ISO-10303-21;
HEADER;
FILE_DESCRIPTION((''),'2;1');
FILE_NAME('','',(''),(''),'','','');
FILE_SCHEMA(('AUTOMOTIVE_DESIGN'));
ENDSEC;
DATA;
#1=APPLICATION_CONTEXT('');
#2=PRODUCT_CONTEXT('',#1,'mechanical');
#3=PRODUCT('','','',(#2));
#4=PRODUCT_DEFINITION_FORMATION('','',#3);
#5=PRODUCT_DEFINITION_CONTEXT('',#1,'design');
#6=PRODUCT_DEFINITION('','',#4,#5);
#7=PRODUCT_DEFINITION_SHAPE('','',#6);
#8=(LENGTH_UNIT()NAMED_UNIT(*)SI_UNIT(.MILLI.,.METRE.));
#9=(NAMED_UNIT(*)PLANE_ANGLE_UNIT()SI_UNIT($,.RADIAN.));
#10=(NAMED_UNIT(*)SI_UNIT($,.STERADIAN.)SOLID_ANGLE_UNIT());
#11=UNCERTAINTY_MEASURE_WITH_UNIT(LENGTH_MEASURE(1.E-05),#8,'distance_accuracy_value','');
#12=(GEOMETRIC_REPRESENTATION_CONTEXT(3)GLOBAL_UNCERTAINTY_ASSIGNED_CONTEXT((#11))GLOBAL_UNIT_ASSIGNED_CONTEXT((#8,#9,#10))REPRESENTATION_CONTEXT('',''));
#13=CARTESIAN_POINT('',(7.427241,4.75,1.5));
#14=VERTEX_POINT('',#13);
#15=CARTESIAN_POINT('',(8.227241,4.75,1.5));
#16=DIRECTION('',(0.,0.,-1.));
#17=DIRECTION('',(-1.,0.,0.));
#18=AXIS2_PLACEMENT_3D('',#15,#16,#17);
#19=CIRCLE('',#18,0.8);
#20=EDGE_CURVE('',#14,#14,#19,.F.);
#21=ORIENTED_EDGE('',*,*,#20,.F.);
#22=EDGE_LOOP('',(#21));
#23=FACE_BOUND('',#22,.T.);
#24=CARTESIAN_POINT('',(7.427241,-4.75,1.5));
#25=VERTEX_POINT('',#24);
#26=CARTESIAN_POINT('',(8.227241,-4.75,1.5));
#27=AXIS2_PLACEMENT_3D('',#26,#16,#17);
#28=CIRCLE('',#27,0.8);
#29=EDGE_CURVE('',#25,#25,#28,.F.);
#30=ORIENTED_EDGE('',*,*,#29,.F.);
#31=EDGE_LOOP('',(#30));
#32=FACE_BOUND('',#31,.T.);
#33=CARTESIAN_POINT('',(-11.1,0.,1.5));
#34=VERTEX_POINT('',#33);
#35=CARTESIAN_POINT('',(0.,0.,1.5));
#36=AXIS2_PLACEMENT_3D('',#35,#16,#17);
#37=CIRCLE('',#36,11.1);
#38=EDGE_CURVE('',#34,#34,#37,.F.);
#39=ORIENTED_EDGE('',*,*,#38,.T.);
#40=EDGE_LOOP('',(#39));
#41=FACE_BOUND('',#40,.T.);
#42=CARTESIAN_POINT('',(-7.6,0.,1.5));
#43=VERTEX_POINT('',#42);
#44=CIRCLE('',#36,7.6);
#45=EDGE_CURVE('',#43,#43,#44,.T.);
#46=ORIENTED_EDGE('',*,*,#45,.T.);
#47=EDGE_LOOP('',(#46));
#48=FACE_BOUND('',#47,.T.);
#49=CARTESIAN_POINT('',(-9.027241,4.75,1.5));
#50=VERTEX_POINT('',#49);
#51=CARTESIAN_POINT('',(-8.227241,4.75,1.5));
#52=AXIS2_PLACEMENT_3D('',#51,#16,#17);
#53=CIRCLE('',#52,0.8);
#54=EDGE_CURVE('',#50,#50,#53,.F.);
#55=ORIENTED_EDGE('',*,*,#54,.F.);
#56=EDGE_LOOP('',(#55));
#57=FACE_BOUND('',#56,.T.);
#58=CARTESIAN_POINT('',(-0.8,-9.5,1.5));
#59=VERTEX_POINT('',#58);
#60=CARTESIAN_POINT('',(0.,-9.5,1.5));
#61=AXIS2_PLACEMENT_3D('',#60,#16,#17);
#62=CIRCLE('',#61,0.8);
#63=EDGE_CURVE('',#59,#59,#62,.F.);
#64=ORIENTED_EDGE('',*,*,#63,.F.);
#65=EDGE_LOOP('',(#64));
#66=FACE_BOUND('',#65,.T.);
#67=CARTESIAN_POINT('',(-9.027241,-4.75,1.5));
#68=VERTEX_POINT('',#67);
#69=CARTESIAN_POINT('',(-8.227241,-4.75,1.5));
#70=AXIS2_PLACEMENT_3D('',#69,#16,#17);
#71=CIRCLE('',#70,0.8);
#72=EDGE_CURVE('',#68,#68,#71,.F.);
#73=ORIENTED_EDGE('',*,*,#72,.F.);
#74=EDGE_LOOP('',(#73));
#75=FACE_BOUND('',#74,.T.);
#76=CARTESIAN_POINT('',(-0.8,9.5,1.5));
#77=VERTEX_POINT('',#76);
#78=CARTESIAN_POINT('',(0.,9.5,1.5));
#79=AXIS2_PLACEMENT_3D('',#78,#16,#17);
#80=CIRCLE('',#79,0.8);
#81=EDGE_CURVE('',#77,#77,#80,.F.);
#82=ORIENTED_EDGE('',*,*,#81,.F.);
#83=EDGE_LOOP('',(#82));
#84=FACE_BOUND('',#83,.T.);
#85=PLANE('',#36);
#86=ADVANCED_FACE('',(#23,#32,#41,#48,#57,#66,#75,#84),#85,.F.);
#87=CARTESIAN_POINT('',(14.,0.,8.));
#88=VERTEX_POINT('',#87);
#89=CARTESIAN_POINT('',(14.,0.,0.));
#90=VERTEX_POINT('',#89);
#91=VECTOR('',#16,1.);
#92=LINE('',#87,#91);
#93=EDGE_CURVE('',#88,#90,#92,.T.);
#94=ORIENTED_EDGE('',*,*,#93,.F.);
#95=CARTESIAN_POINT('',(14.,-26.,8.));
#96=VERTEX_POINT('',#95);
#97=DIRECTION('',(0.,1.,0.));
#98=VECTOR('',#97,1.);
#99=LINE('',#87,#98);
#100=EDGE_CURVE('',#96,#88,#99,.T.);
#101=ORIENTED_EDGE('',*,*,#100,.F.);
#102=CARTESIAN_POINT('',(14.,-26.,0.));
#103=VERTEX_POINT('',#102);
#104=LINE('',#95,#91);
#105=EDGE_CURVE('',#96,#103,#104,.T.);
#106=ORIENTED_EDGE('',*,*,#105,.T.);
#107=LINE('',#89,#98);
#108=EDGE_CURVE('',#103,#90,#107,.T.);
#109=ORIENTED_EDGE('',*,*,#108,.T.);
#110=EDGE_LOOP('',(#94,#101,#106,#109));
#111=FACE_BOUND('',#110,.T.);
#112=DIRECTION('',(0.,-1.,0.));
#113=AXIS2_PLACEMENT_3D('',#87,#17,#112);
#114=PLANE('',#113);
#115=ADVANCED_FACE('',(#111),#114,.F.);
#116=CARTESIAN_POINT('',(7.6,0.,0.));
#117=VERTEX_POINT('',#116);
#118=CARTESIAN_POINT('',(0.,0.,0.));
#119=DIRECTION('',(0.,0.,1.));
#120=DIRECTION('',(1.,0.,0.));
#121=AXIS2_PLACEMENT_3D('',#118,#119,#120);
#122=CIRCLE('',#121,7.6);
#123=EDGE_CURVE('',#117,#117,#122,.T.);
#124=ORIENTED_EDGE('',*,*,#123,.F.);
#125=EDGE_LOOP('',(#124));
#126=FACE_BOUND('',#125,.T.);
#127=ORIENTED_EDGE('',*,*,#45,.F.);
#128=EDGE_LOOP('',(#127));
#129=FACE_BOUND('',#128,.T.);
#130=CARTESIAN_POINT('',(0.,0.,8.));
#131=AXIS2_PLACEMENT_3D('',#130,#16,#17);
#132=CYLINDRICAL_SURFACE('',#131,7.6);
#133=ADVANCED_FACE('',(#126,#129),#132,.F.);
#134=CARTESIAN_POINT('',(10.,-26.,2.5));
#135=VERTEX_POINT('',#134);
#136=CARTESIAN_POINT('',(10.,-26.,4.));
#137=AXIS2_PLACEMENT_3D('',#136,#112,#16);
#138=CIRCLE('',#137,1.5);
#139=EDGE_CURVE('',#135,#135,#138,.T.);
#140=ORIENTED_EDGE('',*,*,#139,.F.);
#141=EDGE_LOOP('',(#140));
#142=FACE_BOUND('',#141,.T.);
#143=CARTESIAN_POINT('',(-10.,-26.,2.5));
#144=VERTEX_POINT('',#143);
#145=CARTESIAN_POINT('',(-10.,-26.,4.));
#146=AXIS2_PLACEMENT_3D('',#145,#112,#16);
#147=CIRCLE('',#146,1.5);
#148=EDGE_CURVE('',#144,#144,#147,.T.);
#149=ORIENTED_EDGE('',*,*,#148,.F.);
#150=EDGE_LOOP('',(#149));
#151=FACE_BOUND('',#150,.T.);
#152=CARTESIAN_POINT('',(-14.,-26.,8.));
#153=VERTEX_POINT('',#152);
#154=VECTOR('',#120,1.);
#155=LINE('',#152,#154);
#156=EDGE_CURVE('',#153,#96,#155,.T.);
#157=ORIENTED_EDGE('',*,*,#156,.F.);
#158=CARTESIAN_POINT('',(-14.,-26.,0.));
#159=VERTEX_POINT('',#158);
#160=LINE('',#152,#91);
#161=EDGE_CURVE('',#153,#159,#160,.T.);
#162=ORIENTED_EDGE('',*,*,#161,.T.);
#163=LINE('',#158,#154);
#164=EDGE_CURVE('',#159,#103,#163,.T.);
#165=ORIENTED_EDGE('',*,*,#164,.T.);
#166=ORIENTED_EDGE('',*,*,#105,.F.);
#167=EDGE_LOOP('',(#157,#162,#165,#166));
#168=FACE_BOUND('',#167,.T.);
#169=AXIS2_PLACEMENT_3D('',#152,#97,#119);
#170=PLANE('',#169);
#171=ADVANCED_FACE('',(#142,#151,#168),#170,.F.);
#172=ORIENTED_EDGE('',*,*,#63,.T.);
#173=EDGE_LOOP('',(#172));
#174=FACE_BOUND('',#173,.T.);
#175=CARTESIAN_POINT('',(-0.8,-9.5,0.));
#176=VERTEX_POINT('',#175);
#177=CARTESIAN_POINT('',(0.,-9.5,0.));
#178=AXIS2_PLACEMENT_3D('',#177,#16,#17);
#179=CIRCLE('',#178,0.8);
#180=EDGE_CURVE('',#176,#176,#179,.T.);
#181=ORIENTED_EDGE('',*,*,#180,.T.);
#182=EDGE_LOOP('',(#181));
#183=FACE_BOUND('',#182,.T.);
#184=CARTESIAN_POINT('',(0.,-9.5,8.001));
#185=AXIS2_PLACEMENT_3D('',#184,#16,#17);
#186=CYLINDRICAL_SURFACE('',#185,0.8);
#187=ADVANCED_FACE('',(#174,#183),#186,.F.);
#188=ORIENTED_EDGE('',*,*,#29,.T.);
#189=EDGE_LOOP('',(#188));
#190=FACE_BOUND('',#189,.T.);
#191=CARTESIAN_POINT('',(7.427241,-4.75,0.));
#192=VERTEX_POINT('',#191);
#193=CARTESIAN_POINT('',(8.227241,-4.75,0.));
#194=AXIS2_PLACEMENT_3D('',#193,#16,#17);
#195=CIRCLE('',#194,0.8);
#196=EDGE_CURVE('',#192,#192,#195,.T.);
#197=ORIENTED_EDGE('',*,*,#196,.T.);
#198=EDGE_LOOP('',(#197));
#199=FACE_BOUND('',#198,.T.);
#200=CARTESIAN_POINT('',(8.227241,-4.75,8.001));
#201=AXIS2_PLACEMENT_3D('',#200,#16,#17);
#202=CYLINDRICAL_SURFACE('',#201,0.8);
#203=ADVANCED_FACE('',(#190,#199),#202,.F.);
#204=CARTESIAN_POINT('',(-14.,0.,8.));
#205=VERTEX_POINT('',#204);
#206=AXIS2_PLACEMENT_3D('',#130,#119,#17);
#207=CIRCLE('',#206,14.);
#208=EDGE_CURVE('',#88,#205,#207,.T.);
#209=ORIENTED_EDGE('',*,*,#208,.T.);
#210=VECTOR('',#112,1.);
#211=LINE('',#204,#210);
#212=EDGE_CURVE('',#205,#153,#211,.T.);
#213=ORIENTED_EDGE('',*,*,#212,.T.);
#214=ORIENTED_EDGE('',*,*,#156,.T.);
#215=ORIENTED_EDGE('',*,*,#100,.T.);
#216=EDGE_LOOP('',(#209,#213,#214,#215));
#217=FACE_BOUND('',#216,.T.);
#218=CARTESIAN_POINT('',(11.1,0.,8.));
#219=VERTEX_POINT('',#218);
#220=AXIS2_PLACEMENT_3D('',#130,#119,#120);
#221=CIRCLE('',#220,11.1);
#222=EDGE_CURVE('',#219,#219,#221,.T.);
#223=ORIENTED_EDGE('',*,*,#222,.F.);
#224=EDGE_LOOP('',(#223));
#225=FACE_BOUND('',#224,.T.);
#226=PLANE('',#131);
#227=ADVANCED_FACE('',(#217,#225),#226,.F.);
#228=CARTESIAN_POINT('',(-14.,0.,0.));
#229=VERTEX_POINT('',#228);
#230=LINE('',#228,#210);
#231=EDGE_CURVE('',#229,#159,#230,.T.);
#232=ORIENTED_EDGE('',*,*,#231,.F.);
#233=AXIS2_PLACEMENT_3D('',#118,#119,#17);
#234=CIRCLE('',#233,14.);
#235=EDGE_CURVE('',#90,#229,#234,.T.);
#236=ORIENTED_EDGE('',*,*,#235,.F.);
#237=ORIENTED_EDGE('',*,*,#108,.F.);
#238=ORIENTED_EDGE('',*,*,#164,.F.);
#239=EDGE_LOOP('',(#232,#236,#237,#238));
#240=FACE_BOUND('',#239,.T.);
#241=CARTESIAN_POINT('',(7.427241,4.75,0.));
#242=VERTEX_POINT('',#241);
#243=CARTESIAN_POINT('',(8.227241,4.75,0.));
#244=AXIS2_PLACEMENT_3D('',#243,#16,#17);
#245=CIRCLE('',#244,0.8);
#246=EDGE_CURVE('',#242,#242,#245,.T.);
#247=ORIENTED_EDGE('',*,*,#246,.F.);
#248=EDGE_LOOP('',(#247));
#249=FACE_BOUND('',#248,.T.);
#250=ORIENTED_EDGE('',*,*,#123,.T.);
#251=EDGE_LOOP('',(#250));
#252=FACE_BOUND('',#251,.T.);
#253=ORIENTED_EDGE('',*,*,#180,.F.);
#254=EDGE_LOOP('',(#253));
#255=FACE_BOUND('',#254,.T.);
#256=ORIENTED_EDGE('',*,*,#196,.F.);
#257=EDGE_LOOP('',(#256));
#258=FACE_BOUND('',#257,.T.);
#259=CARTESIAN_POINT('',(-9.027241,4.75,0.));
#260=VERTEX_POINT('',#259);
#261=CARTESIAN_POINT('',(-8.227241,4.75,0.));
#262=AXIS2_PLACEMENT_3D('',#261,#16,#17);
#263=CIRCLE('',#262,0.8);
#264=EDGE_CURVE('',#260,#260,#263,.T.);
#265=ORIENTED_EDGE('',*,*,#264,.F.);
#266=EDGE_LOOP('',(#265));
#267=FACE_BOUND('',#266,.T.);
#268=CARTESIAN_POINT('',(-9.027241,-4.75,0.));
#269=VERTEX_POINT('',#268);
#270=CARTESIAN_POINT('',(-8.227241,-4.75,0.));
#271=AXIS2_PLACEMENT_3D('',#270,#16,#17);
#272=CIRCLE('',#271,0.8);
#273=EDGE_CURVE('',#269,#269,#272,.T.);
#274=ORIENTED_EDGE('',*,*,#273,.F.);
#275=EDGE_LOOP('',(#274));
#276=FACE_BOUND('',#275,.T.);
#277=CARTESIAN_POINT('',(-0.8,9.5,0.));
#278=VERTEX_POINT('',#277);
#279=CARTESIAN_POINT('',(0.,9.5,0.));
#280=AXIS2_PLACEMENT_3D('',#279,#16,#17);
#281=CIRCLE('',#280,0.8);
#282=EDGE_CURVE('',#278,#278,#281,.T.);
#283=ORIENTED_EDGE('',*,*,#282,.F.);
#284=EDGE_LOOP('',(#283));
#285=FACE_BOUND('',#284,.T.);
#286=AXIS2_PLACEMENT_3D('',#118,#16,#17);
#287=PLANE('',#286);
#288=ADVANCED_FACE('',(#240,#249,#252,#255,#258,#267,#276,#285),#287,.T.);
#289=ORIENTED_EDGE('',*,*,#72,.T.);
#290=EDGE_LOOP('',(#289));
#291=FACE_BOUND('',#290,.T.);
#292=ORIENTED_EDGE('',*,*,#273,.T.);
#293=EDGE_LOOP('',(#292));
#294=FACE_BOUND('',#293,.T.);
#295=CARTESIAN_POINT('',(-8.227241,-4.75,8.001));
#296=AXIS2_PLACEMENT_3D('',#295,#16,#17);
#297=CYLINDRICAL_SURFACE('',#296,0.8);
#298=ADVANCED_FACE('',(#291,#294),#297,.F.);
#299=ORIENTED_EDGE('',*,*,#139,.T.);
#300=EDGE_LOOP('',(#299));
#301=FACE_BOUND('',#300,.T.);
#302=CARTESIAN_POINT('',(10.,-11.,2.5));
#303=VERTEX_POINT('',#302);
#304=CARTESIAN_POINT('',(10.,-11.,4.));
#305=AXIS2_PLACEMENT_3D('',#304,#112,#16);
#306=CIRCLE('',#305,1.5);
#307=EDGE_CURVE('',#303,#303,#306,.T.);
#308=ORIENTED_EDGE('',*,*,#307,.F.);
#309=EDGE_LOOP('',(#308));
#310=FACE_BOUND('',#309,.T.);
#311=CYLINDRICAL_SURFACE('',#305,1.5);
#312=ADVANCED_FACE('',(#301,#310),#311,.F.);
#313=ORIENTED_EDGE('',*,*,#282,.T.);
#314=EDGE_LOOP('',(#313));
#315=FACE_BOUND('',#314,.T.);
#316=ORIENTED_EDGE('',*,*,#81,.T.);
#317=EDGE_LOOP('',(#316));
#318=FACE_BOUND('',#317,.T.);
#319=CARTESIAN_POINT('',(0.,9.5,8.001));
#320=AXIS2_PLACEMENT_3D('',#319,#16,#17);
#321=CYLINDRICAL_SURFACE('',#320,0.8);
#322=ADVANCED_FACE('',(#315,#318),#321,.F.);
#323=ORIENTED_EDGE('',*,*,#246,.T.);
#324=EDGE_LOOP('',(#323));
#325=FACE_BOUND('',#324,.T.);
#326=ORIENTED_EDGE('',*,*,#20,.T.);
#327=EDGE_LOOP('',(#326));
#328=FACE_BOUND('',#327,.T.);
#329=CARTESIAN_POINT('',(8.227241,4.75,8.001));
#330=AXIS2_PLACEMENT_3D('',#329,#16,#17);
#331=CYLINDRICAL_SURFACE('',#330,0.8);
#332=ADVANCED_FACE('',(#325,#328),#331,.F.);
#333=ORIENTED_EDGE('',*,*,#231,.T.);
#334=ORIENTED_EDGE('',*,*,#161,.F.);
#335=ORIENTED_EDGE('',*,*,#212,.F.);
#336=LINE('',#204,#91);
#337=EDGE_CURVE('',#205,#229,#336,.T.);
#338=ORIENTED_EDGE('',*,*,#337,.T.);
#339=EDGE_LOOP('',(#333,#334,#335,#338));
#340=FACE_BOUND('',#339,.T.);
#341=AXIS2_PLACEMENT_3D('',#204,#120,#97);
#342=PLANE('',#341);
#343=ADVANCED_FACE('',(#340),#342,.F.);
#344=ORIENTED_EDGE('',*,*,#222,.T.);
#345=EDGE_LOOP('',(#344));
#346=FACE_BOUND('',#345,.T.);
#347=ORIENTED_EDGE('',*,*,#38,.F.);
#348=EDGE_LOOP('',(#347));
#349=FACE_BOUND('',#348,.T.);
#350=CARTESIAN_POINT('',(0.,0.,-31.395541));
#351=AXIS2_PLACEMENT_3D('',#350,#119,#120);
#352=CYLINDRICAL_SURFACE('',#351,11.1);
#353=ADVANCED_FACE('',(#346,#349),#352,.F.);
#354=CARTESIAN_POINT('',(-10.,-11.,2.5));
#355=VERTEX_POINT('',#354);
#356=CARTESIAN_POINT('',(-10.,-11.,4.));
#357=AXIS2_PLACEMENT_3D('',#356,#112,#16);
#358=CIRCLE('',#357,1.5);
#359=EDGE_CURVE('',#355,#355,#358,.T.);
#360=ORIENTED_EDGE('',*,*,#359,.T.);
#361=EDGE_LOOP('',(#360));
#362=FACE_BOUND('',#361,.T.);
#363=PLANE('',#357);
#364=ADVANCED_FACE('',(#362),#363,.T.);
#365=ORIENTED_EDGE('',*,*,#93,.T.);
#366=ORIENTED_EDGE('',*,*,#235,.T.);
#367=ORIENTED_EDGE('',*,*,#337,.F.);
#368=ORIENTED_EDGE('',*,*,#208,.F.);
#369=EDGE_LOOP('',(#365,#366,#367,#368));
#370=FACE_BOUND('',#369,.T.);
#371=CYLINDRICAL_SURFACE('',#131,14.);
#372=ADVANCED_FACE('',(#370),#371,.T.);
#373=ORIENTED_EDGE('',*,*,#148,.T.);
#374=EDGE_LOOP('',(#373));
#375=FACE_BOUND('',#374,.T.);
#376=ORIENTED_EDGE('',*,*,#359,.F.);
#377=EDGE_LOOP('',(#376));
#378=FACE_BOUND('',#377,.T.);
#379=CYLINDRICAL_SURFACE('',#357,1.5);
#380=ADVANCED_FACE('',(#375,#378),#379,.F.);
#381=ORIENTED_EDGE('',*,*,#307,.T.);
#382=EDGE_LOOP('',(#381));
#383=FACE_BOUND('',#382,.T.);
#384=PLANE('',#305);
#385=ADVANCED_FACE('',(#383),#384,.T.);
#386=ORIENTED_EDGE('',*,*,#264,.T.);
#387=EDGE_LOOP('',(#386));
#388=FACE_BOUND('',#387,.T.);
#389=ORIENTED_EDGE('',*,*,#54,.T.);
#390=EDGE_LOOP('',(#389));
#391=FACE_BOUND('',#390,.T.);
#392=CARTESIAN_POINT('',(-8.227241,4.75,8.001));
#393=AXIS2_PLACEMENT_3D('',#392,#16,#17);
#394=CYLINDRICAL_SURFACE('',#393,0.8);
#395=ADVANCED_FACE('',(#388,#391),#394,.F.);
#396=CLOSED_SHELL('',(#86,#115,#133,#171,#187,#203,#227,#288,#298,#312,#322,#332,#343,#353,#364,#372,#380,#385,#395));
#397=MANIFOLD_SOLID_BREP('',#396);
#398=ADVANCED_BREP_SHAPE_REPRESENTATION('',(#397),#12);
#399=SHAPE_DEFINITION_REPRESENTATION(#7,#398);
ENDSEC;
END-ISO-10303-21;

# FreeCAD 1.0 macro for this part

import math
import FreeCAD as App
import Part
import Sketcher

doc = App.newDocument("Part")
params = doc.addObject("Spreadsheet::Sheet", "Params")
for row, (alias, value) in enumerate([
    ("sketch1_radius", "14 mm"),
    ("sketch1_diameter", "15.2 mm"),
    ("sketch1_height", "26 mm"),
    ("pad1_length", "8 mm"),
    ("sketch2_diameter", "22.2 mm"),
    ("pocket1_length", "6.5 mm"),
    ("sketch3_diameter", "1.6 mm"),
    ("sketch4_diameter", "1.6 mm"),
    ("sketch5_diameter", "1.6 mm"),
    ("sketch6_diameter", "1.6 mm"),
    ("sketch7_diameter", "1.6 mm"),
    ("sketch8_diameter", "1.6 mm"),
    ("sketch9_diameter", "3 mm"),
    ("pocket8_length", "15 mm"),
], start=1):
    params.set(f"A{row}", alias)
    params.set(f"B{row}", "=" + value)
    params.setAlias(f"B{row}", alias)

body = doc.addObject("PartDesign::Body", "Body")

sketch1 = body.newObject("Sketcher::SketchObject", "Sketch")
sketch1.AttachmentSupport = (doc.getObject("XY_Plane"), [""])
sketch1.MapMode = "FlatFace"
sketch1.addGeometry([
    Part.LineSegment(App.Vector(-14, 0, 0), App.Vector(-14, -26, 0)),
    Part.LineSegment(App.Vector(-14, -26, 0), App.Vector(14, -26, 0)),
    Part.LineSegment(App.Vector(14, -26, 0), App.Vector(14, 0, 0)),
    Part.ArcOfCircle(Part.Circle(App.Vector(0, 0, 0), App.Vector(0, 0, 1), 14), math.radians(0), math.radians(180)),
    Part.Circle(App.Vector(0, 0, 0), App.Vector(0, 0, 1), 7.6),
], False)
sketch1.addConstraint([
    Sketcher.Constraint("Coincident", 0, 2, 1, 1),
    Sketcher.Constraint("Coincident", 1, 2, 2, 1),
    Sketcher.Constraint("Tangent", 2, 2, 3, 1),
    Sketcher.Constraint("Tangent", 3, 2, 0, 1),
    Sketcher.Constraint("Vertical", 0),
    Sketcher.Constraint("Horizontal", 1),
    Sketcher.Constraint("Vertical", 2),
    Sketcher.Constraint("Coincident", 3, 3, -1, 1),
    Sketcher.Constraint("Coincident", 4, 3, -1, 1),
    Sketcher.Constraint("Radius", 3, 14.0),
    Sketcher.Constraint("Diameter", 4, 15.2),
    Sketcher.Constraint("DistanceY", 0, 2, 0, 1, 26.0),
])
sketch1.setExpression("Constraints[9]", "Params.sketch1_radius")
sketch1.setExpression("Constraints[10]", "Params.sketch1_diameter")
sketch1.setExpression("Constraints[11]", "Params.sketch1_height")
pad1 = body.newObject("PartDesign::Pad", "Pad")
pad1.Profile = sketch1
pad1.setExpression("Length", "Params.pad1_length")

sketch2 = body.newObject("Sketcher::SketchObject", "Sketch001")
sketch2.AttachmentSupport = (doc.getObject("XY_Plane"), [""])
sketch2.MapMode = "FlatFace"
sketch2.AttachmentOffset = App.Placement(App.Vector(0, 0, 8), App.Rotation())
sketch2.addGeometry(Part.Circle(App.Vector(0, 0, 0), App.Vector(0, 0, 1), 11.1), False)
sketch2.addConstraint([
    Sketcher.Constraint("Coincident", 0, 3, -1, 1),
    Sketcher.Constraint("Diameter", 0, 22.2),
])
sketch2.setExpression("Constraints[1]", "Params.sketch2_diameter")
pocket1 = body.newObject("PartDesign::Pocket", "Pocket")
pocket1.Profile = sketch2
pocket1.setExpression("Length", "Params.pocket1_length")

sketch3 = body.newObject("Sketcher::SketchObject", "Sketch002")
sketch3.AttachmentSupport = (doc.getObject("XY_Plane"), [""])
sketch3.MapMode = "FlatFace"
sketch3.addGeometry(Part.Circle(App.Vector(0, 9.5, 0), App.Vector(0, 0, 1), 0.8), False)
sketch3.addConstraint([
    Sketcher.Constraint("PointOnObject", 0, 3, -2),
    Sketcher.Constraint("Diameter", 0, 1.6),
    Sketcher.Constraint("DistanceY", -1, 1, 0, 3, 9.5),
])
sketch3.setExpression("Constraints[1]", "Params.sketch3_diameter")
pocket2 = body.newObject("PartDesign::Pocket", "Pocket001")
pocket2.Profile = sketch3
pocket2.Type = "UpToFirst"
pocket2.Reversed = True

sketch4 = body.newObject("Sketcher::SketchObject", "Sketch003")
sketch4.AttachmentSupport = (doc.getObject("XY_Plane"), [""])
sketch4.MapMode = "FlatFace"
sketch4.addGeometry(Part.Circle(App.Vector(-8.227241, 4.75, 0), App.Vector(0, 0, 1), 0.8), False)
sketch4.addConstraint([
    Sketcher.Constraint("Diameter", 0, 1.6),
    Sketcher.Constraint("DistanceY", -1, 1, 0, 3, 4.75),
    Sketcher.Constraint("DistanceX", 0, 3, -1, 1, 8.227241),
])
sketch4.setExpression("Constraints[0]", "Params.sketch4_diameter")
pocket3 = body.newObject("PartDesign::Pocket", "Pocket002")
pocket3.Profile = sketch4
pocket3.Type = "UpToFirst"
pocket3.Reversed = True

sketch5 = body.newObject("Sketcher::SketchObject", "Sketch004")
sketch5.AttachmentSupport = (doc.getObject("XY_Plane"), [""])
sketch5.MapMode = "FlatFace"
sketch5.addGeometry(Part.Circle(App.Vector(-8.227241, -4.75, 0), App.Vector(0, 0, 1), 0.8), False)
sketch5.addConstraint([
    Sketcher.Constraint("Diameter", 0, 1.6),
    Sketcher.Constraint("DistanceY", 0, 3, -1, 1, 4.75),
    Sketcher.Constraint("DistanceX", 0, 3, -1, 1, 8.227241),
])
sketch5.setExpression("Constraints[0]", "Params.sketch5_diameter")
pocket4 = body.newObject("PartDesign::Pocket", "Pocket003")
pocket4.Profile = sketch5
pocket4.Type = "UpToFirst"
pocket4.Reversed = True

sketch6 = body.newObject("Sketcher::SketchObject", "Sketch005")
sketch6.AttachmentSupport = (doc.getObject("XY_Plane"), [""])
sketch6.MapMode = "FlatFace"
sketch6.addGeometry(Part.Circle(App.Vector(0, -9.5, 0), App.Vector(0, 0, 1), 0.8), False)
sketch6.addConstraint([
    Sketcher.Constraint("PointOnObject", 0, 3, -2),
    Sketcher.Constraint("Diameter", 0, 1.6),
    Sketcher.Constraint("DistanceY", 0, 3, -1, 1, 9.5),
])
sketch6.setExpression("Constraints[1]", "Params.sketch6_diameter")
pocket5 = body.newObject("PartDesign::Pocket", "Pocket004")
pocket5.Profile = sketch6
pocket5.Type = "UpToFirst"
pocket5.Reversed = True

sketch7 = body.newObject("Sketcher::SketchObject", "Sketch006")
sketch7.AttachmentSupport = (doc.getObject("XY_Plane"), [""])
sketch7.MapMode = "FlatFace"
sketch7.addGeometry(Part.Circle(App.Vector(8.227241, -4.75, 0), App.Vector(0, 0, 1), 0.8), False)
sketch7.addConstraint([
    Sketcher.Constraint("Diameter", 0, 1.6),
    Sketcher.Constraint("DistanceY", 0, 3, -1, 1, 4.75),
    Sketcher.Constraint("DistanceX", -1, 1, 0, 3, 8.227241),
])
sketch7.setExpression("Constraints[0]", "Params.sketch7_diameter")
pocket6 = body.newObject("PartDesign::Pocket", "Pocket005")
pocket6.Profile = sketch7
pocket6.Type = "UpToFirst"
pocket6.Reversed = True

sketch8 = body.newObject("Sketcher::SketchObject", "Sketch007")
sketch8.AttachmentSupport = (doc.getObject("XY_Plane"), [""])
sketch8.MapMode = "FlatFace"
sketch8.addGeometry(Part.Circle(App.Vector(8.227241, 4.75, 0), App.Vector(0, 0, 1), 0.8), False)
sketch8.addConstraint([
    Sketcher.Constraint("Diameter", 0, 1.6),
    Sketcher.Constraint("DistanceY", -1, 1, 0, 3, 4.75),
    Sketcher.Constraint("DistanceX", -1, 1, 0, 3, 8.227241),
])
sketch8.setExpression("Constraints[0]", "Params.sketch8_diameter")
pocket7 = body.newObject("PartDesign::Pocket", "Pocket006")
pocket7.Profile = sketch8
pocket7.Type = "UpToFirst"
pocket7.Reversed = True

sketch9 = body.newObject("Sketcher::SketchObject", "Sketch008")
sketch9.AttachmentSupport = (doc.getObject("XZ_Plane"), [""])
sketch9.MapMode = "FlatFace"
sketch9.AttachmentOffset = App.Placement(App.Vector(0, 0, 26), App.Rotation())
sketch9.addGeometry([
    Part.Circle(App.Vector(-10, 4, 0), App.Vector(0, 0, 1), 1.5),
    Part.Circle(App.Vector(10, 4, 0), App.Vector(0, 0, 1), 1.5),
], False)
sketch9.addConstraint([
    Sketcher.Constraint("Equal", 0, 1),
    Sketcher.Constraint("Symmetric", 0, 3, 1, 3, -2),
    Sketcher.Constraint("Diameter", 0, 3.0),
    Sketcher.Constraint("DistanceX", 0, 3, -1, 1, 10.0),
    Sketcher.Constraint("DistanceY", -1, 1, 0, 3, 4.0),
])
sketch9.setExpression("Constraints[2]", "Params.sketch9_diameter")
pocket8 = body.newObject("PartDesign::Pocket", "Pocket007")
pocket8.Profile = sketch9
pocket8.setExpression("Length", "Params.pocket8_length")

doc.recompute()
